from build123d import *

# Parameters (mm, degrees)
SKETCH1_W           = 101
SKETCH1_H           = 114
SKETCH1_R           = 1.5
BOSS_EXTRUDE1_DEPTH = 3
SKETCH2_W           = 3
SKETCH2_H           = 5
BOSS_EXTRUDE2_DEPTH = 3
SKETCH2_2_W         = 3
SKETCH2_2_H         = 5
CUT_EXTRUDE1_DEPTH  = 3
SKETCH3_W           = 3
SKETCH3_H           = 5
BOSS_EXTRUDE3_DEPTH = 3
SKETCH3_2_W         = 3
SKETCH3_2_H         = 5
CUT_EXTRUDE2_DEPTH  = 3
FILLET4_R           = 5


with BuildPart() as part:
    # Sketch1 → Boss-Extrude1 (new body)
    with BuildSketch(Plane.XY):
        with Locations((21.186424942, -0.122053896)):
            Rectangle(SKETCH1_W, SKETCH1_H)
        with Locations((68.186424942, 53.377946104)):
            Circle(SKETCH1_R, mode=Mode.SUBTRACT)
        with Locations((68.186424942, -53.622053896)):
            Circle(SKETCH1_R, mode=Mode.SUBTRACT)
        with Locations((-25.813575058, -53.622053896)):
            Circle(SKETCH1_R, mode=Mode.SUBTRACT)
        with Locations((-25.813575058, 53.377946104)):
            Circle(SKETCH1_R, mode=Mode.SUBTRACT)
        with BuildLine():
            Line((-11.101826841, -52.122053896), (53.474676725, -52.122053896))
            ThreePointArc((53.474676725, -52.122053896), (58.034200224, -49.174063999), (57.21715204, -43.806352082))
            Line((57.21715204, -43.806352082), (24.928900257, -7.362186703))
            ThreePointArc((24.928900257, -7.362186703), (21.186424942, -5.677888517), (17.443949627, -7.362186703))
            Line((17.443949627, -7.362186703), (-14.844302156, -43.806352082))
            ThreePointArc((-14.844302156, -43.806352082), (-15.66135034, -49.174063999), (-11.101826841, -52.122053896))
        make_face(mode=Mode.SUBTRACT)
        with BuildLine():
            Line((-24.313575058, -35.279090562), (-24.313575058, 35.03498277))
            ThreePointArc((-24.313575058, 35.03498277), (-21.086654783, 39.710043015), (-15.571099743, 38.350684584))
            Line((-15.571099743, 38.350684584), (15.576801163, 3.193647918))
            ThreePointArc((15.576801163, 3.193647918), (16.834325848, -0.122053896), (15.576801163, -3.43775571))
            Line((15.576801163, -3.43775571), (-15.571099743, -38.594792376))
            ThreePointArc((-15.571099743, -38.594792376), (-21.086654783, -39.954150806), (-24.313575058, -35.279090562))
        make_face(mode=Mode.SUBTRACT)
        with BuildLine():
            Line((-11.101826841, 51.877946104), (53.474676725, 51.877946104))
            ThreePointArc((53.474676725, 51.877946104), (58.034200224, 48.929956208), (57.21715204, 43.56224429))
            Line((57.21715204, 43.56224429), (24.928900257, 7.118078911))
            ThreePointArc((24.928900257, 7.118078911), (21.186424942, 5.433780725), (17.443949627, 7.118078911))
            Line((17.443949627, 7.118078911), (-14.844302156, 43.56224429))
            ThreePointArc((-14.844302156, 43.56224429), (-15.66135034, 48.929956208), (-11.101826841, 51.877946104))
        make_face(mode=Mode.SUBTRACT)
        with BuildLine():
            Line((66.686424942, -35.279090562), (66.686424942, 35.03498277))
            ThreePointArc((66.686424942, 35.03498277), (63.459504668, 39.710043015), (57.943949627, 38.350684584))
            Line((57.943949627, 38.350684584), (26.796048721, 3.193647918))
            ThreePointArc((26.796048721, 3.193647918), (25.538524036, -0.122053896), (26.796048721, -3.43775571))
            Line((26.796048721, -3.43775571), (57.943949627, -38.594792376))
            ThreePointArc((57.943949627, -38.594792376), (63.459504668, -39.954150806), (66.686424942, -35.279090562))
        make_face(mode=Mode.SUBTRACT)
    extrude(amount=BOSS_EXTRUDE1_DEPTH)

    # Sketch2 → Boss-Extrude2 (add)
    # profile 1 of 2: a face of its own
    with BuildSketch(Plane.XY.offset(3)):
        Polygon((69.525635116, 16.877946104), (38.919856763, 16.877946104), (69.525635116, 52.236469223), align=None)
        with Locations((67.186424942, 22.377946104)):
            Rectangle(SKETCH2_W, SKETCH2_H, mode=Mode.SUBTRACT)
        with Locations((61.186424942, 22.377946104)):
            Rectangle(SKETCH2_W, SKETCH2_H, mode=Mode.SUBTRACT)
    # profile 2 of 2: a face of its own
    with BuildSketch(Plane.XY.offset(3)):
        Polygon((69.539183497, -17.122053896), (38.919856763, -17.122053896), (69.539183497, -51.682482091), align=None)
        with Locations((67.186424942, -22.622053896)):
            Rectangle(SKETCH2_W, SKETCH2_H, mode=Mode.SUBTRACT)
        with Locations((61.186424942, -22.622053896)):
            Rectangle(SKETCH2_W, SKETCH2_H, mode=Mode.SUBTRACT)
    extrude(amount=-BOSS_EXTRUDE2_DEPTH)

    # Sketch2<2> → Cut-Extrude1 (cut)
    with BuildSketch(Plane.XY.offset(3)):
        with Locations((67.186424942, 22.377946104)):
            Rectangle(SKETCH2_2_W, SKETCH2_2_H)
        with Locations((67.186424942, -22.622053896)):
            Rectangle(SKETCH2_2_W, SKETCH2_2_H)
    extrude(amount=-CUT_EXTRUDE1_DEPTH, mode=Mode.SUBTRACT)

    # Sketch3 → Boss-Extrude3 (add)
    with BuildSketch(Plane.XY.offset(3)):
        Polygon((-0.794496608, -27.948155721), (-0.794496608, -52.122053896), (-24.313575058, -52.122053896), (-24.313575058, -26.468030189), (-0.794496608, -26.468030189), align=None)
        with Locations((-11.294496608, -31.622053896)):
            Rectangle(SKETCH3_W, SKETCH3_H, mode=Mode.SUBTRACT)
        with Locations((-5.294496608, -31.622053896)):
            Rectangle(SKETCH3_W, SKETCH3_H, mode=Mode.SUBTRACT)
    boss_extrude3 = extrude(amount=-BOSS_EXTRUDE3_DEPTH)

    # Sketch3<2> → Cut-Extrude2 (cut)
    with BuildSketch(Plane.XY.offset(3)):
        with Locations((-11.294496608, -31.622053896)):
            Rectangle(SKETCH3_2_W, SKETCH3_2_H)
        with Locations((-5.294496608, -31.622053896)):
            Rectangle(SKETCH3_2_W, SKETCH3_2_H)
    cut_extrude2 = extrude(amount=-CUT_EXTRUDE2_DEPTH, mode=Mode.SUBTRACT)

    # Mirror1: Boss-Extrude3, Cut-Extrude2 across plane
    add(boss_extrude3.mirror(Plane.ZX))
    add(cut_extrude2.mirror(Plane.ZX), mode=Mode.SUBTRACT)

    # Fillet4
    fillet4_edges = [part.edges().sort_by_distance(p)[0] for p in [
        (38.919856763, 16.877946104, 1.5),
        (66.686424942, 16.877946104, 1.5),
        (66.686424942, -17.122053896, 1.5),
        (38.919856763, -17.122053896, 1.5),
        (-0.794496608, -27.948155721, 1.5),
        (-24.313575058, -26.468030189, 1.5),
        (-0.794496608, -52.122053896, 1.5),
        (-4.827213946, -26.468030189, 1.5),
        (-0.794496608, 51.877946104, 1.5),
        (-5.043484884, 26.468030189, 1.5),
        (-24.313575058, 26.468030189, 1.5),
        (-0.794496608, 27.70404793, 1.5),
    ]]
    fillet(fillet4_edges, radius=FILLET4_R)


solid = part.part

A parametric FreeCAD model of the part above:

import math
import FreeCAD as App
import Part
import Sketcher


def edges_at(feature, points):
    """Names of the edges that pass closest to the given points."""
    edges = feature.Shape.Edges
    near = lambda p: min(range(len(edges)), key=lambda i: edges[i].distToShape(Part.Vertex(*p))[0])
    return sorted({f"Edge{near(p) + 1}" for p in points})

doc = App.newDocument("Part")
body = doc.addObject("PartDesign::Body", "Body")

# Sketch on XY plane
sketch1 = body.newObject("Sketcher::SketchObject", "Sketch")
sketch1.AttachmentSupport = (doc.getObject("XY_Plane"), [""])
sketch1.MapMode = "FlatFace"
sketch1.addGeometry(Part.LineSegment(App.Vector(-29.3, 56.9, 0), App.Vector(-29.3, -57.1, 0)), False)
sketch1.addGeometry(Part.LineSegment(App.Vector(-29.3, -57.1, 0), App.Vector(71.7, -57.1, 0)), False)
sketch1.addGeometry(Part.LineSegment(App.Vector(71.7, -57.1, 0), App.Vector(71.7, 56.9, 0)), False)
sketch1.addGeometry(Part.LineSegment(App.Vector(71.7, 56.9, 0), App.Vector(-29.3, 56.9, 0)), False)
sketch1.addGeometry(Part.Circle(App.Vector(-25.8, -53.6, 0), App.Vector(0, 0, 1), 1.5), False)
sketch1.addGeometry(Part.LineSegment(App.Vector(53.5, -52.1, 0), App.Vector(-11.1, -52.1, 0)), False)
sketch1.addGeometry(Part.ArcOfCircle(Part.Circle(App.Vector(-11.1, -47.1, 0), App.Vector(0, 0, 1), 5), math.radians(138), math.radians(270)), False)
sketch1.addGeometry(Part.LineSegment(App.Vector(-14.8, -43.8, 0), App.Vector(17.4, -7.4, 0)), False)
sketch1.addGeometry(Part.ArcOfCircle(Part.Circle(App.Vector(21.2, -10.7, 0), App.Vector(0, 0, 1), 5), math.radians(42), math.radians(138)), False)
sketch1.addGeometry(Part.LineSegment(App.Vector(24.9, -7.4, 0), App.Vector(57.2, -43.8, 0)), False)
sketch1.addGeometry(Part.ArcOfCircle(Part.Circle(App.Vector(53.5, -47.1, 0), App.Vector(0, 0, 1), 5), math.radians(-90), math.radians(42)), False)
sketch1.addGeometry(Part.Circle(App.Vector(68.2, -53.6, 0), App.Vector(0, 0, 1), 1.5), False)
sketch1.addGeometry(Part.ArcOfCircle(Part.Circle(App.Vector(-19.3, -35.3, 0), App.Vector(0, 0, 1), 5), math.radians(-180), math.radians(-42)), False)
sketch1.addGeometry(Part.LineSegment(App.Vector(-24.3, -35.3, 0), App.Vector(-24.3, 35, 0)), False)
sketch1.addGeometry(Part.ArcOfCircle(Part.Circle(App.Vector(-19.3, 35, 0), App.Vector(0, 0, 1), 5), math.radians(42), math.radians(180)), False)
sketch1.addGeometry(Part.LineSegment(App.Vector(-15.6, 38.4, 0), App.Vector(15.6, 3.2, 0)), False)
sketch1.addGeometry(Part.ArcOfCircle(Part.Circle(App.Vector(11.8, -0.1, 0), App.Vector(0, 0, 1), 5), math.radians(-42), math.radians(42)), False)
sketch1.addGeometry(Part.LineSegment(App.Vector(15.6, -3.4, 0), App.Vector(-15.6, -38.6, 0)), False)
sketch1.addGeometry(Part.Circle(App.Vector(-25.8, 53.4, 0), App.Vector(0, 0, 1), 1.5), False)
sketch1.addGeometry(Part.LineSegment(App.Vector(66.7, 35, 0), App.Vector(66.7, -35.3, 0)), False)
sketch1.addGeometry(Part.ArcOfCircle(Part.Circle(App.Vector(61.7, -35.3, 0), App.Vector(0, 0, 1), 5), math.radians(-138), math.radians(0)), False)
sketch1.addGeometry(Part.LineSegment(App.Vector(57.9, -38.6, 0), App.Vector(26.8, -3.4, 0)), False)
sketch1.addGeometry(Part.ArcOfCircle(Part.Circle(App.Vector(30.5, -0.1, 0), App.Vector(0, 0, 1), 5), math.radians(138), math.radians(222)), False)
sketch1.addGeometry(Part.LineSegment(App.Vector(26.8, 3.2, 0), App.Vector(57.9, 38.4, 0)), False)
sketch1.addGeometry(Part.ArcOfCircle(Part.Circle(App.Vector(61.7, 35, 0), App.Vector(0, 0, 1), 5), math.radians(0), math.radians(138)), False)
sketch1.addGeometry(Part.ArcOfCircle(Part.Circle(App.Vector(-11.1, 46.9, 0), App.Vector(0, 0, 1), 5), math.radians(90), math.radians(222)), False)
sketch1.addGeometry(Part.LineSegment(App.Vector(-11.1, 51.9, 0), App.Vector(53.5, 51.9, 0)), False)
sketch1.addGeometry(Part.ArcOfCircle(Part.Circle(App.Vector(53.5, 46.9, 0), App.Vector(0, 0, 1), 5), math.radians(-42), math.radians(90)), False)
sketch1.addGeometry(Part.LineSegment(App.Vector(57.2, 43.6, 0), App.Vector(24.9, 7.1, 0)), False)
sketch1.addGeometry(Part.ArcOfCircle(Part.Circle(App.Vector(21.2, 10.4, 0), App.Vector(0, 0, 1), 5), math.radians(-138), math.radians(-42)), False)
sketch1.addGeometry(Part.LineSegment(App.Vector(17.4, 7.1, 0), App.Vector(-14.8, 43.6, 0)), False)
sketch1.addGeometry(Part.Circle(App.Vector(68.2, 53.4, 0), App.Vector(0, 0, 1), 1.5), False)
sketch1.addConstraint(Sketcher.Constraint("Coincident", 0, 2, 1, 1))
sketch1.addConstraint(Sketcher.Constraint("Coincident", 1, 2, 2, 1))
sketch1.addConstraint(Sketcher.Constraint("Coincident", 2, 2, 3, 1))
sketch1.addConstraint(Sketcher.Constraint("Coincident", 3, 2, 0, 1))
sketch1.addConstraint(Sketcher.Constraint("Tangent", 5, 2, 6, 2))
sketch1.addConstraint(Sketcher.Constraint("Tangent", 6, 1, 7, 1))
sketch1.addConstraint(Sketcher.Constraint("Tangent", 7, 2, 8, 2))
sketch1.addConstraint(Sketcher.Constraint("Tangent", 8, 1, 9, 1))
sketch1.addConstraint(Sketcher.Constraint("Tangent", 9, 2, 10, 2))
sketch1.addConstraint(Sketcher.Constraint("Tangent", 10, 1, 5, 1))
sketch1.addConstraint(Sketcher.Constraint("Tangent", 12, 1, 13, 1))
sketch1.addConstraint(Sketcher.Constraint("Tangent", 13, 2, 14, 2))
sketch1.addConstraint(Sketcher.Constraint("Tangent", 14, 1, 15, 1))
sketch1.addConstraint(Sketcher.Constraint("Tangent", 15, 2, 16, 2))
sketch1.addConstraint(Sketcher.Constraint("Tangent", 16, 1, 17, 1))
sketch1.addConstraint(Sketcher.Constraint("Tangent", 17, 2, 12, 2))
sketch1.addConstraint(Sketcher.Constraint("Tangent", 19, 2, 20, 2))
sketch1.addConstraint(Sketcher.Constraint("Tangent", 20, 1, 21, 1))
sketch1.addConstraint(Sketcher.Constraint("Tangent", 21, 2, 22, 2))
sketch1.addConstraint(Sketcher.Constraint("Tangent", 22, 1, 23, 1))
sketch1.addConstraint(Sketcher.Constraint("Tangent", 23, 2, 24, 2))
sketch1.addConstraint(Sketcher.Constraint("Tangent", 24, 1, 19, 1))
sketch1.addConstraint(Sketcher.Constraint("Tangent", 25, 1, 26, 1))
sketch1.addConstraint(Sketcher.Constraint("Tangent", 26, 2, 27, 2))
sketch1.addConstraint(Sketcher.Constraint("Tangent", 27, 1, 28, 1))
sketch1.addConstraint(Sketcher.Constraint("Tangent", 28, 2, 29, 2))
sketch1.addConstraint(Sketcher.Constraint("Tangent", 29, 1, 30, 1))
sketch1.addConstraint(Sketcher.Constraint("Tangent", 30, 2, 25, 2))
sketch1.addConstraint(Sketcher.Constraint("Vertical", 0))
sketch1.addConstraint(Sketcher.Constraint("Horizontal", 1))
sketch1.addConstraint(Sketcher.Constraint("Vertical", 2))
sketch1.addConstraint(Sketcher.Constraint("Horizontal", 3))
sketch1.addConstraint(Sketcher.Constraint("Horizontal", 5))
sketch1.addConstraint(Sketcher.Constraint("Vertical", 13))
sketch1.addConstraint(Sketcher.Constraint("Vertical", 19))
sketch1.addConstraint(Sketcher.Constraint("Horizontal", 26))
sketch1.addConstraint(Sketcher.Constraint("Equal", 6, 8))
sketch1.addConstraint(Sketcher.Constraint("Equal", 8, 10))
sketch1.addConstraint(Sketcher.Constraint("Equal", 4, 11))
sketch1.addConstraint(Sketcher.Constraint("Equal", 10, 12))
sketch1.addConstraint(Sketcher.Constraint("Equal", 12, 14))
sketch1.addConstraint(Sketcher.Constraint("Equal", 14, 16))
sketch1.addConstraint(Sketcher.Constraint("Equal", 11, 18))
sketch1.addConstraint(Sketcher.Constraint("Equal", 16, 20))
sketch1.addConstraint(Sketcher.Constraint("Equal", 20, 22))
sketch1.addConstraint(Sketcher.Constraint("Equal", 22, 24))
sketch1.addConstraint(Sketcher.Constraint("Equal", 24, 25))
sketch1.addConstraint(Sketcher.Constraint("Equal", 25, 27))
sketch1.addConstraint(Sketcher.Constraint("Equal", 27, 29))
sketch1.addConstraint(Sketcher.Constraint("Equal", 18, 31))
sketch1.addConstraint(Sketcher.Constraint("Parallel", 9, 15))
sketch1.addConstraint(Sketcher.Constraint("Parallel", 7, 17))
sketch1.addConstraint(Sketcher.Constraint("Parallel", 15, 21))
sketch1.addConstraint(Sketcher.Constraint("Parallel", 17, 23))
sketch1.addConstraint(Sketcher.Constraint("Parallel", 23, 28))
sketch1.addConstraint(Sketcher.Constraint("Parallel", 21, 30))
sketch1.addConstraint(Sketcher.Constraint("Horizontal", 4, 3, 11, 3))
sketch1.addConstraint(Sketcher.Constraint("Horizontal", 12, 3, 20, 3))
sketch1.addConstraint(Sketcher.Constraint("Horizontal", 16, 3, 22, 3))
sketch1.addConstraint(Sketcher.Constraint("Horizontal", 14, 3, 24, 3))
sketch1.addConstraint(Sketcher.Constraint("Horizontal", 18, 3, 31, 3))
sketch1.addConstraint(Sketcher.Constraint("Vertical", 4, 3, 18, 3))
sketch1.addConstraint(Sketcher.Constraint("Vertical", 6, 3, 25, 3))
sketch1.addConstraint(Sketcher.Constraint("Vertical", 10, 3, 27, 3))
sketch1.addConstraint(Sketcher.Constraint("Vertical", 11, 3, 31, 3))
sketch1.addConstraint(Sketcher.Constraint("Diameter", 4, 3.0))
sketch1.addConstraint(Sketcher.Constraint("Radius", 6, 5.0))
sketch1.addConstraint(Sketcher.Constraint("DistanceX", 1, 1, 1, 2, 101.0))
sketch1.addConstraint(Sketcher.Constraint("DistanceY", 0, 2, 0, 1, 114.0))
sketch1.addConstraint(Sketcher.Constraint("DistanceX", 4, 3, 8, 3, 47.0))
sketch1.addConstraint(Sketcher.Constraint("DistanceX", 8, 3, 11, 3, 47.0))
sketch1.addConstraint(Sketcher.Constraint("DistanceY", 6, 3, 16, 3, 47.0))
sketch1.addConstraint(Sketcher.Constraint("DistanceX", 14, 3, 24, 3, 81.0))
sketch1.addConstraint(Sketcher.Constraint("DistanceY", 16, 3, 25, 3, 47.0))
sketch1.addConstraint(Sketcher.Constraint("DistanceY", 0, 2, 6, 3, 10.0))
sketch1.addConstraint(Sketcher.Constraint("DistanceX", 0, 2, 12, 3, 10.0))
sketch1.addConstraint(Sketcher.Constraint("DistanceY", 4, 3, 6, 3, 6.5))
sketch1.addConstraint(Sketcher.Constraint("DistanceX", 4, 3, 12, 3, 6.5))
sketch1.addConstraint(Sketcher.Constraint("DistanceY", 16, 3, 18, 3, 53.5))
sketch1.addConstraint(Sketcher.Constraint("Distance", 15, 46.970299))
sketch1.addConstraint(Sketcher.Constraint("DistanceX", -1, 1, 8, 1, 24.9289))
sketch1.addConstraint(Sketcher.Constraint("DistanceX", -1, 1, 15, 2, 15.576801))
sketch1.addConstraint(Sketcher.Constraint("Distance", 7, 48.689921))
sketch1.addConstraint(Sketcher.Constraint("DistanceY", 8, 3, -1, 1, 10.677889))
pad1 = body.newObject("PartDesign::Pad", "Pad")
pad1.Profile = sketch1
pad1.Length = 3

# Sketch on XY plane
sketch2 = body.newObject("Sketcher::SketchObject", "Sketch001")
sketch2.AttachmentSupport = (doc.getObject("XY_Plane"), [""])
sketch2.MapMode = "FlatFace"
sketch2.AttachmentOffset = App.Placement(App.Vector(0, 0, 3), App.Rotation())
sketch2.addGeometry(Part.LineSegment(App.Vector(38.9, 16.9, 0), App.Vector(69.5, 16.9, 0)), False)
sketch2.addGeometry(Part.LineSegment(App.Vector(69.5, 16.9, 0), App.Vector(69.5, 52.2, 0)), False)
sketch2.addGeometry(Part.LineSegment(App.Vector(69.5, 52.2, 0), App.Vector(38.9, 16.9, 0)), False)
sketch2.addGeometry(Part.LineSegment(App.Vector(65.7, 19.9, 0), App.Vector(65.7, 24.9, 0)), False)
sketch2.addGeometry(Part.LineSegment(App.Vector(65.7, 24.9, 0), App.Vector(68.7, 24.9, 0)), False)
sketch2.addGeometry(Part.LineSegment(App.Vector(68.7, 24.9, 0), App.Vector(68.7, 19.9, 0)), False)
sketch2.addGeometry(Part.LineSegment(App.Vector(68.7, 19.9, 0), App.Vector(65.7, 19.9, 0)), False)
sketch2.addGeometry(Part.LineSegment(App.Vector(59.7, 19.9, 0), App.Vector(59.7, 24.9, 0)), False)
sketch2.addGeometry(Part.LineSegment(App.Vector(59.7, 24.9, 0), App.Vector(62.7, 24.9, 0)), False)
sketch2.addGeometry(Part.LineSegment(App.Vector(62.7, 24.9, 0), App.Vector(62.7, 19.9, 0)), False)
sketch2.addGeometry(Part.LineSegment(App.Vector(62.7, 19.9, 0), App.Vector(59.7, 19.9, 0)), False)
sketch2.addGeometry(Part.LineSegment(App.Vector(69.5, -17.1, 0), App.Vector(38.9, -17.1, 0)), False)
sketch2.addGeometry(Part.LineSegment(App.Vector(38.9, -17.1, 0), App.Vector(69.5, -51.7, 0)), False)
sketch2.addGeometry(Part.LineSegment(App.Vector(69.5, -51.7, 0), App.Vector(69.5, -17.1, 0)), False)
sketch2.addGeometry(Part.LineSegment(App.Vector(62.7, -25.1, 0), App.Vector(59.7, -25.1, 0)), False)
sketch2.addGeometry(Part.LineSegment(App.Vector(59.7, -25.1, 0), App.Vector(59.7, -20.1, 0)), False)
sketch2.addGeometry(Part.LineSegment(App.Vector(59.7, -20.1, 0), App.Vector(62.7, -20.1, 0)), False)
sketch2.addGeometry(Part.LineSegment(App.Vector(62.7, -20.1, 0), App.Vector(62.7, -25.1, 0)), False)
sketch2.addGeometry(Part.LineSegment(App.Vector(68.7, -25.1, 0), App.Vector(65.7, -25.1, 0)), False)
sketch2.addGeometry(Part.LineSegment(App.Vector(65.7, -25.1, 0), App.Vector(65.7, -20.1, 0)), False)
sketch2.addGeometry(Part.LineSegment(App.Vector(65.7, -20.1, 0), App.Vector(68.7, -20.1, 0)), False)
sketch2.addGeometry(Part.LineSegment(App.Vector(68.7, -20.1, 0), App.Vector(68.7, -25.1, 0)), False)
sketch2.addConstraint(Sketcher.Constraint("Coincident", 0, 2, 1, 1))
sketch2.addConstraint(Sketcher.Constraint("Coincident", 1, 2, 2, 1))
sketch2.addConstraint(Sketcher.Constraint("Coincident", 2, 2, 0, 1))
sketch2.addConstraint(Sketcher.Constraint("Coincident", 3, 2, 4, 1))
sketch2.addConstraint(Sketcher.Constraint("Coincident", 4, 2, 5, 1))
sketch2.addConstraint(Sketcher.Constraint("Coincident", 5, 2, 6, 1))
sketch2.addConstraint(Sketcher.Constraint("Coincident", 6, 2, 3, 1))
sketch2.addConstraint(Sketcher.Constraint("Coincident", 7, 2, 8, 1))
sketch2.addConstraint(Sketcher.Constraint("Coincident", 8, 2, 9, 1))
sketch2.addConstraint(Sketcher.Constraint("Coincident", 9, 2, 10, 1))
sketch2.addConstraint(Sketcher.Constraint("Coincident", 10, 2, 7, 1))
sketch2.addConstraint(Sketcher.Constraint("Coincident", 11, 2, 12, 1))
sketch2.addConstraint(Sketcher.Constraint("Coincident", 12, 2, 13, 1))
sketch2.addConstraint(Sketcher.Constraint("Coincident", 13, 2, 11, 1))
sketch2.addConstraint(Sketcher.Constraint("Coincident", 14, 2, 15, 1))
sketch2.addConstraint(Sketcher.Constraint("Coincident", 15, 2, 16, 1))
sketch2.addConstraint(Sketcher.Constraint("Coincident", 16, 2, 17, 1))
sketch2.addConstraint(Sketcher.Constraint("Coincident", 17, 2, 14, 1))
sketch2.addConstraint(Sketcher.Constraint("Coincident", 18, 2, 19, 1))
sketch2.addConstraint(Sketcher.Constraint("Coincident", 19, 2, 20, 1))
sketch2.addConstraint(Sketcher.Constraint("Coincident", 20, 2, 21, 1))
sketch2.addConstraint(Sketcher.Constraint("Coincident", 21, 2, 18, 1))
sketch2.addConstraint(Sketcher.Constraint("Horizontal", 0))
sketch2.addConstraint(Sketcher.Constraint("Vertical", 1))
sketch2.addConstraint(Sketcher.Constraint("Vertical", 3))
sketch2.addConstraint(Sketcher.Constraint("Horizontal", 4))
sketch2.addConstraint(Sketcher.Constraint("Vertical", 5))
sketch2.addConstraint(Sketcher.Constraint("Horizontal", 6))
sketch2.addConstraint(Sketcher.Constraint("Vertical", 7))
sketch2.addConstraint(Sketcher.Constraint("Horizontal", 8))
sketch2.addConstraint(Sketcher.Constraint("Vertical", 9))
sketch2.addConstraint(Sketcher.Constraint("Horizontal", 10))
sketch2.addConstraint(Sketcher.Constraint("Horizontal", 11))
sketch2.addConstraint(Sketcher.Constraint("Vertical", 13))
sketch2.addConstraint(Sketcher.Constraint("Horizontal", 14))
sketch2.addConstraint(Sketcher.Constraint("Vertical", 15))
sketch2.addConstraint(Sketcher.Constraint("Horizontal", 16))
sketch2.addConstraint(Sketcher.Constraint("Vertical", 17))
sketch2.addConstraint(Sketcher.Constraint("Horizontal", 18))
sketch2.addConstraint(Sketcher.Constraint("Vertical", 19))
sketch2.addConstraint(Sketcher.Constraint("Horizontal", 20))
sketch2.addConstraint(Sketcher.Constraint("Vertical", 21))
sketch2.addConstraint(Sketcher.Constraint("Horizontal", 4, 2, 7, 2))
sketch2.addConstraint(Sketcher.Constraint("Horizontal", 6, 2, 9, 2))
sketch2.addConstraint(Sketcher.Constraint("Horizontal", 17, 2, 18, 2))
sketch2.addConstraint(Sketcher.Constraint("Horizontal", 16, 2, 19, 2))
sketch2.addConstraint(Sketcher.Constraint("Vertical", 2, 2, 11, 2))
sketch2.addConstraint(Sketcher.Constraint("Vertical", 10, 2, 14, 2))
sketch2.addConstraint(Sketcher.Constraint("Vertical", 9, 2, 16, 2))
sketch2.addConstraint(Sketcher.Constraint("Vertical", 6, 2, 18, 2))
sketch2.addConstraint(Sketcher.Constraint("Vertical", 5, 2, 20, 2))
sketch2.addConstraint(Sketcher.Constraint("Equal", 6, 8))
sketch2.addConstraint(Sketcher.Constraint("Equal", 9, 15))
sketch2.addConstraint(Sketcher.Constraint("DistanceX", 4, 1, 4, 2, 3.0))
sketch2.addConstraint(Sketcher.Constraint("DistanceY", 3, 1, 3, 2, 5.0))
sketch2.addConstraint(Sketcher.Constraint("DistanceY", 0, 2, 3, 2, 8.0))
sketch2.addConstraint(Sketcher.Constraint("DistanceX", 7, 2, 3, 2, 6.0))
sketch2.addConstraint(Sketcher.Constraint("DistanceY", 11, 2, 2, 2, 34.0))
sketch2.addConstraint(Sketcher.Constraint("DistanceY", 14, 2, 13, 2, 8.0))
sketch2.addConstraint(Sketcher.Constraint("DistanceX", 0, 1, 0, 2, 30.605778))
sketch2.addConstraint(Sketcher.Constraint("DistanceY", 13, 1, 13, 2, 34.560428))
sketch2.addConstraint(Sketcher.Constraint("Distance", 12, 46.173221))
sketch2.addConstraint(Sketcher.Constraint("DistanceY", 1, 1, 1, 2, 35.358523))
sketch2.addConstraint(Sketcher.Constraint("DistanceY", -1, 1, 1, 2, 52.236469))
sketch2.addConstraint(Sketcher.Constraint("DistanceX", 3, 2, 0, 2, 3.83921))
sketch2.addConstraint(Sketcher.Constraint("DistanceX", -1, 1, 0, 2, 69.525635))
pad2 = body.newObject("PartDesign::Pad", "Pad001")
pad2.Profile = sketch2
pad2.Length = 3
pad2.Reversed = True

# Sketch on XY plane
sketch3 = body.newObject("Sketcher::SketchObject", "Sketch002")
sketch3.AttachmentSupport = (doc.getObject("XY_Plane"), [""])
sketch3.MapMode = "FlatFace"
sketch3.AttachmentOffset = App.Placement(App.Vector(0, 0, 3), App.Rotation())
sketch3.addGeometry(Part.LineSegment(App.Vector(65.7, 24.9, 0), App.Vector(65.7, 19.9, 0)), False)
sketch3.addGeometry(Part.LineSegment(App.Vector(65.7, 19.9, 0), App.Vector(68.7, 19.9, 0)), False)
sketch3.addGeometry(Part.LineSegment(App.Vector(68.7, 19.9, 0), App.Vector(68.7, 24.9, 0)), False)
sketch3.addGeometry(Part.LineSegment(App.Vector(68.7, 24.9, 0), App.Vector(65.7, 24.9, 0)), False)
sketch3.addGeometry(Part.LineSegment(App.Vector(65.7, -20.1, 0), App.Vector(65.7, -25.1, 0)), False)
sketch3.addGeometry(Part.LineSegment(App.Vector(65.7, -25.1, 0), App.Vector(68.7, -25.1, 0)), False)
sketch3.addGeometry(Part.LineSegment(App.Vector(68.7, -25.1, 0), App.Vector(68.7, -20.1, 0)), False)
sketch3.addGeometry(Part.LineSegment(App.Vector(68.7, -20.1, 0), App.Vector(65.7, -20.1, 0)), False)
sketch3.addConstraint(Sketcher.Constraint("Coincident", 0, 2, 1, 1))
sketch3.addConstraint(Sketcher.Constraint("Coincident", 1, 2, 2, 1))
sketch3.addConstraint(Sketcher.Constraint("Coincident", 2, 2, 3, 1))
sketch3.addConstraint(Sketcher.Constraint("Coincident", 3, 2, 0, 1))
sketch3.addConstraint(Sketcher.Constraint("Coincident", 4, 2, 5, 1))
sketch3.addConstraint(Sketcher.Constraint("Coincident", 5, 2, 6, 1))
sketch3.addConstraint(Sketcher.Constraint("Coincident", 6, 2, 7, 1))
sketch3.addConstraint(Sketcher.Constraint("Coincident", 7, 2, 4, 1))
sketch3.addConstraint(Sketcher.Constraint("Vertical", 0))
sketch3.addConstraint(Sketcher.Constraint("Horizontal", 1))
sketch3.addConstraint(Sketcher.Constraint("Vertical", 2))
sketch3.addConstraint(Sketcher.Constraint("Horizontal", 3))
sketch3.addConstraint(Sketcher.Constraint("Vertical", 4))
sketch3.addConstraint(Sketcher.Constraint("Horizontal", 5))
sketch3.addConstraint(Sketcher.Constraint("Vertical", 6))
sketch3.addConstraint(Sketcher.Constraint("Horizontal", 7))
sketch3.addConstraint(Sketcher.Constraint("Vertical", 3, 2, 4, 2))
sketch3.addConstraint(Sketcher.Constraint("Vertical", 2, 2, 5, 2))
sketch3.addConstraint(Sketcher.Constraint("Equal", 2, 4))
sketch3.addConstraint(Sketcher.Constraint("DistanceX", 1, 1, 1, 2, 3.0))
sketch3.addConstraint(Sketcher.Constraint("DistanceY", 0, 2, 0, 1, 5.0))
sketch3.addConstraint(Sketcher.Constraint("DistanceY", 4, 2, 0, 2, 45.0))
sketch3.addConstraint(Sketcher.Constraint("DistanceX", -1, 1, 0, 2, 65.686425))
sketch3.addConstraint(Sketcher.Constraint("DistanceY", -1, 1, 0, 2, 19.877946))
pocket1 = body.newObject("PartDesign::Pocket", "Pocket")
pocket1.Profile = sketch3
pocket1.Length = 3

# Sketch on XY plane
sketch4 = body.newObject("Sketcher::SketchObject", "Sketch003")
sketch4.AttachmentSupport = (doc.getObject("XY_Plane"), [""])
sketch4.MapMode = "FlatFace"
sketch4.AttachmentOffset = App.Placement(App.Vector(0, 0, 3), App.Rotation())
sketch4.addGeometry(Part.LineSegment(App.Vector(-0.8, -52.1, 0), App.Vector(-0.8, -26.5, 0)), False)
sketch4.addGeometry(Part.LineSegment(App.Vector(-0.8, -26.5, 0), App.Vector(-24.3, -26.5, 0)), False)
sketch4.addGeometry(Part.LineSegment(App.Vector(-24.3, -26.5, 0), App.Vector(-24.3, -52.1, 0)), False)
sketch4.addGeometry(Part.LineSegment(App.Vector(-24.3, -52.1, 0), App.Vector(-0.8, -52.1, 0)), False)
sketch4.addGeometry(Part.LineSegment(App.Vector(-6.8, -34.1, 0), App.Vector(-6.8, -29.1, 0)), False)
sketch4.addGeometry(Part.LineSegment(App.Vector(-6.8, -29.1, 0), App.Vector(-3.8, -29.1, 0)), False)
sketch4.addGeometry(Part.LineSegment(App.Vector(-3.8, -29.1, 0), App.Vector(-3.8, -34.1, 0)), False)
sketch4.addGeometry(Part.LineSegment(App.Vector(-3.8, -34.1, 0), App.Vector(-6.8, -34.1, 0)), False)
sketch4.addGeometry(Part.LineSegment(App.Vector(-12.8, -34.1, 0), App.Vector(-12.8, -29.1, 0)), False)
sketch4.addGeometry(Part.LineSegment(App.Vector(-12.8, -29.1, 0), App.Vector(-9.8, -29.1, 0)), False)
sketch4.addGeometry(Part.LineSegment(App.Vector(-9.8, -29.1, 0), App.Vector(-9.8, -34.1, 0)), False)
sketch4.addGeometry(Part.LineSegment(App.Vector(-9.8, -34.1, 0), App.Vector(-12.8, -34.1, 0)), False)
sketch4.addConstraint(Sketcher.Constraint("Coincident", 0, 2, 1, 1))
sketch4.addConstraint(Sketcher.Constraint("Coincident", 1, 2, 2, 1))
sketch4.addConstraint(Sketcher.Constraint("Coincident", 2, 2, 3, 1))
sketch4.addConstraint(Sketcher.Constraint("Coincident", 3, 2, 0, 1))
sketch4.addConstraint(Sketcher.Constraint("Coincident", 4, 2, 5, 1))
sketch4.addConstraint(Sketcher.Constraint("Coincident", 5, 2, 6, 1))
sketch4.addConstraint(Sketcher.Constraint("Coincident", 6, 2, 7, 1))
sketch4.addConstraint(Sketcher.Constraint("Coincident", 7, 2, 4, 1))
sketch4.addConstraint(Sketcher.Constraint("Coincident", 8, 2, 9, 1))
sketch4.addConstraint(Sketcher.Constraint("Coincident", 9, 2, 10, 1))
sketch4.addConstraint(Sketcher.Constraint("Coincident", 10, 2, 11, 1))
sketch4.addConstraint(Sketcher.Constraint("Coincident", 11, 2, 8, 1))
sketch4.addConstraint(Sketcher.Constraint("Vertical", 0))
sketch4.addConstraint(Sketcher.Constraint("Horizontal", 1))
sketch4.addConstraint(Sketcher.Constraint("Vertical", 2))
sketch4.addConstraint(Sketcher.Constraint("Horizontal", 3))
sketch4.addConstraint(Sketcher.Constraint("Vertical", 4))
sketch4.addConstraint(Sketcher.Constraint("Horizontal", 5))
sketch4.addConstraint(Sketcher.Constraint("Vertical", 6))
sketch4.addConstraint(Sketcher.Constraint("Horizontal", 7))
sketch4.addConstraint(Sketcher.Constraint("Vertical", 8))
sketch4.addConstraint(Sketcher.Constraint("Horizontal", 9))
sketch4.addConstraint(Sketcher.Constraint("Vertical", 10))
sketch4.addConstraint(Sketcher.Constraint("Horizontal", 11))
sketch4.addConstraint(Sketcher.Constraint("Horizontal", 5, 2, 8, 2))
sketch4.addConstraint(Sketcher.Constraint("Horizontal", 7, 2, 10, 2))
sketch4.addConstraint(Sketcher.Constraint("Equal", 7, 9))
sketch4.addConstraint(Sketcher.Constraint("DistanceX", 5, 1, 5, 2, 3.0))
sketch4.addConstraint(Sketcher.Constraint("DistanceY", 4, 1, 4, 2, 5.0))
sketch4.addConstraint(Sketcher.Constraint("DistanceX", 4, 2, 0, 2, 6.0))
sketch4.addConstraint(Sketcher.Constraint("DistanceY", 3, 2, 4, 2, 23.0))
sketch4.addConstraint(Sketcher.Constraint("DistanceX", 8, 2, 4, 2, 6.0))
sketch4.addConstraint(Sketcher.Constraint("DistanceX", 1, 2, 1, 1, 23.519078))
sketch4.addConstraint(Sketcher.Constraint("DistanceY", 0, 1, 0, 2, 25.654024))
sketch4.addConstraint(Sketcher.Constraint("DistanceY", 0, 2, -1, 1, 26.46803))
sketch4.addConstraint(Sketcher.Constraint("DistanceX", 0, 2, -1, 1, 0.794497))
pad3 = body.newObject("PartDesign::Pad", "Pad002")
pad3.Profile = sketch4
pad3.Length = 3
pad3.Reversed = True

# Sketch on XY plane
sketch5 = body.newObject("Sketcher::SketchObject", "Sketch004")
sketch5.AttachmentSupport = (doc.getObject("XY_Plane"), [""])
sketch5.MapMode = "FlatFace"
sketch5.AttachmentOffset = App.Placement(App.Vector(0, 0, 3), App.Rotation())
sketch5.addGeometry(Part.LineSegment(App.Vector(-12.8, -29.1, 0), App.Vector(-12.8, -34.1, 0)), False)
sketch5.addGeometry(Part.LineSegment(App.Vector(-12.8, -34.1, 0), App.Vector(-9.8, -34.1, 0)), False)
sketch5.addGeometry(Part.LineSegment(App.Vector(-9.8, -34.1, 0), App.Vector(-9.8, -29.1, 0)), False)
sketch5.addGeometry(Part.LineSegment(App.Vector(-9.8, -29.1, 0), App.Vector(-12.8, -29.1, 0)), False)
sketch5.addGeometry(Part.LineSegment(App.Vector(-6.8, -29.1, 0), App.Vector(-6.8, -34.1, 0)), False)
sketch5.addGeometry(Part.LineSegment(App.Vector(-6.8, -34.1, 0), App.Vector(-3.8, -34.1, 0)), False)
sketch5.addGeometry(Part.LineSegment(App.Vector(-3.8, -34.1, 0), App.Vector(-3.8, -29.1, 0)), False)
sketch5.addGeometry(Part.LineSegment(App.Vector(-3.8, -29.1, 0), App.Vector(-6.8, -29.1, 0)), False)
sketch5.addConstraint(Sketcher.Constraint("Coincident", 0, 2, 1, 1))
sketch5.addConstraint(Sketcher.Constraint("Coincident", 1, 2, 2, 1))
sketch5.addConstraint(Sketcher.Constraint("Coincident", 2, 2, 3, 1))
sketch5.addConstraint(Sketcher.Constraint("Coincident", 3, 2, 0, 1))
sketch5.addConstraint(Sketcher.Constraint("Coincident", 4, 2, 5, 1))
sketch5.addConstraint(Sketcher.Constraint("Coincident", 5, 2, 6, 1))
sketch5.addConstraint(Sketcher.Constraint("Coincident", 6, 2, 7, 1))
sketch5.addConstraint(Sketcher.Constraint("Coincident", 7, 2, 4, 1))
sketch5.addConstraint(Sketcher.Constraint("Vertical", 0))
sketch5.addConstraint(Sketcher.Constraint("Horizontal", 1))
sketch5.addConstraint(Sketcher.Constraint("Vertical", 2))
sketch5.addConstraint(Sketcher.Constraint("Horizontal", 3))
sketch5.addConstraint(Sketcher.Constraint("Vertical", 4))
sketch5.addConstraint(Sketcher.Constraint("Horizontal", 5))
sketch5.addConstraint(Sketcher.Constraint("Vertical", 6))
sketch5.addConstraint(Sketcher.Constraint("Horizontal", 7))
sketch5.addConstraint(Sketcher.Constraint("Horizontal", 1, 2, 4, 2))
sketch5.addConstraint(Sketcher.Constraint("Horizontal", 3, 2, 6, 2))
sketch5.addConstraint(Sketcher.Constraint("Equal", 3, 5))
sketch5.addConstraint(Sketcher.Constraint("DistanceX", 1, 1, 1, 2, 3.0))
sketch5.addConstraint(Sketcher.Constraint("DistanceY", 0, 2, 0, 1, 5.0))
sketch5.addConstraint(Sketcher.Constraint("DistanceX", 1, 2, 4, 2, 3.0))
sketch5.addConstraint(Sketcher.Constraint("DistanceX", 0, 2, -1, 1, 12.794497))
sketch5.addConstraint(Sketcher.Constraint("DistanceY", 0, 2, -1, 1, 34.122054))
pocket2 = body.newObject("PartDesign::Pocket", "Pocket001")
pocket2.Profile = sketch5
pocket2.Length = 3
doc.recompute()

mirrored = body.newObject("PartDesign::Mirrored", "Mirrored")
mirrored.Originals = [pad3, pocket2]
mirrored.MirrorPlane = (doc.getObject("XZ_Plane"), [""])
body.Tip = mirrored
doc.recompute()

fillet = body.newObject("PartDesign::Fillet", "Fillet")
fillet.Base = (mirrored, edges_at(mirrored, [
    (38.92, 16.878, 1.5),
    (66.686, 16.878, 1.5),
    (66.686, -17.122, 1.5),
    (38.92, -17.122, 1.5),
    (-0.794, -27.948, 1.5),
    (-24.314, -26.468, 1.5),
    (-0.794, -52.122, 1.5),
    (-4.827, -26.468, 1.5),
    (-0.794, 51.878, 1.5),
    (-5.043, 26.468, 1.5),
    (-24.314, 26.468, 1.5),
    (-0.794, 27.704, 1.5),
]))
fillet.Radius = 5

doc.recompute()
